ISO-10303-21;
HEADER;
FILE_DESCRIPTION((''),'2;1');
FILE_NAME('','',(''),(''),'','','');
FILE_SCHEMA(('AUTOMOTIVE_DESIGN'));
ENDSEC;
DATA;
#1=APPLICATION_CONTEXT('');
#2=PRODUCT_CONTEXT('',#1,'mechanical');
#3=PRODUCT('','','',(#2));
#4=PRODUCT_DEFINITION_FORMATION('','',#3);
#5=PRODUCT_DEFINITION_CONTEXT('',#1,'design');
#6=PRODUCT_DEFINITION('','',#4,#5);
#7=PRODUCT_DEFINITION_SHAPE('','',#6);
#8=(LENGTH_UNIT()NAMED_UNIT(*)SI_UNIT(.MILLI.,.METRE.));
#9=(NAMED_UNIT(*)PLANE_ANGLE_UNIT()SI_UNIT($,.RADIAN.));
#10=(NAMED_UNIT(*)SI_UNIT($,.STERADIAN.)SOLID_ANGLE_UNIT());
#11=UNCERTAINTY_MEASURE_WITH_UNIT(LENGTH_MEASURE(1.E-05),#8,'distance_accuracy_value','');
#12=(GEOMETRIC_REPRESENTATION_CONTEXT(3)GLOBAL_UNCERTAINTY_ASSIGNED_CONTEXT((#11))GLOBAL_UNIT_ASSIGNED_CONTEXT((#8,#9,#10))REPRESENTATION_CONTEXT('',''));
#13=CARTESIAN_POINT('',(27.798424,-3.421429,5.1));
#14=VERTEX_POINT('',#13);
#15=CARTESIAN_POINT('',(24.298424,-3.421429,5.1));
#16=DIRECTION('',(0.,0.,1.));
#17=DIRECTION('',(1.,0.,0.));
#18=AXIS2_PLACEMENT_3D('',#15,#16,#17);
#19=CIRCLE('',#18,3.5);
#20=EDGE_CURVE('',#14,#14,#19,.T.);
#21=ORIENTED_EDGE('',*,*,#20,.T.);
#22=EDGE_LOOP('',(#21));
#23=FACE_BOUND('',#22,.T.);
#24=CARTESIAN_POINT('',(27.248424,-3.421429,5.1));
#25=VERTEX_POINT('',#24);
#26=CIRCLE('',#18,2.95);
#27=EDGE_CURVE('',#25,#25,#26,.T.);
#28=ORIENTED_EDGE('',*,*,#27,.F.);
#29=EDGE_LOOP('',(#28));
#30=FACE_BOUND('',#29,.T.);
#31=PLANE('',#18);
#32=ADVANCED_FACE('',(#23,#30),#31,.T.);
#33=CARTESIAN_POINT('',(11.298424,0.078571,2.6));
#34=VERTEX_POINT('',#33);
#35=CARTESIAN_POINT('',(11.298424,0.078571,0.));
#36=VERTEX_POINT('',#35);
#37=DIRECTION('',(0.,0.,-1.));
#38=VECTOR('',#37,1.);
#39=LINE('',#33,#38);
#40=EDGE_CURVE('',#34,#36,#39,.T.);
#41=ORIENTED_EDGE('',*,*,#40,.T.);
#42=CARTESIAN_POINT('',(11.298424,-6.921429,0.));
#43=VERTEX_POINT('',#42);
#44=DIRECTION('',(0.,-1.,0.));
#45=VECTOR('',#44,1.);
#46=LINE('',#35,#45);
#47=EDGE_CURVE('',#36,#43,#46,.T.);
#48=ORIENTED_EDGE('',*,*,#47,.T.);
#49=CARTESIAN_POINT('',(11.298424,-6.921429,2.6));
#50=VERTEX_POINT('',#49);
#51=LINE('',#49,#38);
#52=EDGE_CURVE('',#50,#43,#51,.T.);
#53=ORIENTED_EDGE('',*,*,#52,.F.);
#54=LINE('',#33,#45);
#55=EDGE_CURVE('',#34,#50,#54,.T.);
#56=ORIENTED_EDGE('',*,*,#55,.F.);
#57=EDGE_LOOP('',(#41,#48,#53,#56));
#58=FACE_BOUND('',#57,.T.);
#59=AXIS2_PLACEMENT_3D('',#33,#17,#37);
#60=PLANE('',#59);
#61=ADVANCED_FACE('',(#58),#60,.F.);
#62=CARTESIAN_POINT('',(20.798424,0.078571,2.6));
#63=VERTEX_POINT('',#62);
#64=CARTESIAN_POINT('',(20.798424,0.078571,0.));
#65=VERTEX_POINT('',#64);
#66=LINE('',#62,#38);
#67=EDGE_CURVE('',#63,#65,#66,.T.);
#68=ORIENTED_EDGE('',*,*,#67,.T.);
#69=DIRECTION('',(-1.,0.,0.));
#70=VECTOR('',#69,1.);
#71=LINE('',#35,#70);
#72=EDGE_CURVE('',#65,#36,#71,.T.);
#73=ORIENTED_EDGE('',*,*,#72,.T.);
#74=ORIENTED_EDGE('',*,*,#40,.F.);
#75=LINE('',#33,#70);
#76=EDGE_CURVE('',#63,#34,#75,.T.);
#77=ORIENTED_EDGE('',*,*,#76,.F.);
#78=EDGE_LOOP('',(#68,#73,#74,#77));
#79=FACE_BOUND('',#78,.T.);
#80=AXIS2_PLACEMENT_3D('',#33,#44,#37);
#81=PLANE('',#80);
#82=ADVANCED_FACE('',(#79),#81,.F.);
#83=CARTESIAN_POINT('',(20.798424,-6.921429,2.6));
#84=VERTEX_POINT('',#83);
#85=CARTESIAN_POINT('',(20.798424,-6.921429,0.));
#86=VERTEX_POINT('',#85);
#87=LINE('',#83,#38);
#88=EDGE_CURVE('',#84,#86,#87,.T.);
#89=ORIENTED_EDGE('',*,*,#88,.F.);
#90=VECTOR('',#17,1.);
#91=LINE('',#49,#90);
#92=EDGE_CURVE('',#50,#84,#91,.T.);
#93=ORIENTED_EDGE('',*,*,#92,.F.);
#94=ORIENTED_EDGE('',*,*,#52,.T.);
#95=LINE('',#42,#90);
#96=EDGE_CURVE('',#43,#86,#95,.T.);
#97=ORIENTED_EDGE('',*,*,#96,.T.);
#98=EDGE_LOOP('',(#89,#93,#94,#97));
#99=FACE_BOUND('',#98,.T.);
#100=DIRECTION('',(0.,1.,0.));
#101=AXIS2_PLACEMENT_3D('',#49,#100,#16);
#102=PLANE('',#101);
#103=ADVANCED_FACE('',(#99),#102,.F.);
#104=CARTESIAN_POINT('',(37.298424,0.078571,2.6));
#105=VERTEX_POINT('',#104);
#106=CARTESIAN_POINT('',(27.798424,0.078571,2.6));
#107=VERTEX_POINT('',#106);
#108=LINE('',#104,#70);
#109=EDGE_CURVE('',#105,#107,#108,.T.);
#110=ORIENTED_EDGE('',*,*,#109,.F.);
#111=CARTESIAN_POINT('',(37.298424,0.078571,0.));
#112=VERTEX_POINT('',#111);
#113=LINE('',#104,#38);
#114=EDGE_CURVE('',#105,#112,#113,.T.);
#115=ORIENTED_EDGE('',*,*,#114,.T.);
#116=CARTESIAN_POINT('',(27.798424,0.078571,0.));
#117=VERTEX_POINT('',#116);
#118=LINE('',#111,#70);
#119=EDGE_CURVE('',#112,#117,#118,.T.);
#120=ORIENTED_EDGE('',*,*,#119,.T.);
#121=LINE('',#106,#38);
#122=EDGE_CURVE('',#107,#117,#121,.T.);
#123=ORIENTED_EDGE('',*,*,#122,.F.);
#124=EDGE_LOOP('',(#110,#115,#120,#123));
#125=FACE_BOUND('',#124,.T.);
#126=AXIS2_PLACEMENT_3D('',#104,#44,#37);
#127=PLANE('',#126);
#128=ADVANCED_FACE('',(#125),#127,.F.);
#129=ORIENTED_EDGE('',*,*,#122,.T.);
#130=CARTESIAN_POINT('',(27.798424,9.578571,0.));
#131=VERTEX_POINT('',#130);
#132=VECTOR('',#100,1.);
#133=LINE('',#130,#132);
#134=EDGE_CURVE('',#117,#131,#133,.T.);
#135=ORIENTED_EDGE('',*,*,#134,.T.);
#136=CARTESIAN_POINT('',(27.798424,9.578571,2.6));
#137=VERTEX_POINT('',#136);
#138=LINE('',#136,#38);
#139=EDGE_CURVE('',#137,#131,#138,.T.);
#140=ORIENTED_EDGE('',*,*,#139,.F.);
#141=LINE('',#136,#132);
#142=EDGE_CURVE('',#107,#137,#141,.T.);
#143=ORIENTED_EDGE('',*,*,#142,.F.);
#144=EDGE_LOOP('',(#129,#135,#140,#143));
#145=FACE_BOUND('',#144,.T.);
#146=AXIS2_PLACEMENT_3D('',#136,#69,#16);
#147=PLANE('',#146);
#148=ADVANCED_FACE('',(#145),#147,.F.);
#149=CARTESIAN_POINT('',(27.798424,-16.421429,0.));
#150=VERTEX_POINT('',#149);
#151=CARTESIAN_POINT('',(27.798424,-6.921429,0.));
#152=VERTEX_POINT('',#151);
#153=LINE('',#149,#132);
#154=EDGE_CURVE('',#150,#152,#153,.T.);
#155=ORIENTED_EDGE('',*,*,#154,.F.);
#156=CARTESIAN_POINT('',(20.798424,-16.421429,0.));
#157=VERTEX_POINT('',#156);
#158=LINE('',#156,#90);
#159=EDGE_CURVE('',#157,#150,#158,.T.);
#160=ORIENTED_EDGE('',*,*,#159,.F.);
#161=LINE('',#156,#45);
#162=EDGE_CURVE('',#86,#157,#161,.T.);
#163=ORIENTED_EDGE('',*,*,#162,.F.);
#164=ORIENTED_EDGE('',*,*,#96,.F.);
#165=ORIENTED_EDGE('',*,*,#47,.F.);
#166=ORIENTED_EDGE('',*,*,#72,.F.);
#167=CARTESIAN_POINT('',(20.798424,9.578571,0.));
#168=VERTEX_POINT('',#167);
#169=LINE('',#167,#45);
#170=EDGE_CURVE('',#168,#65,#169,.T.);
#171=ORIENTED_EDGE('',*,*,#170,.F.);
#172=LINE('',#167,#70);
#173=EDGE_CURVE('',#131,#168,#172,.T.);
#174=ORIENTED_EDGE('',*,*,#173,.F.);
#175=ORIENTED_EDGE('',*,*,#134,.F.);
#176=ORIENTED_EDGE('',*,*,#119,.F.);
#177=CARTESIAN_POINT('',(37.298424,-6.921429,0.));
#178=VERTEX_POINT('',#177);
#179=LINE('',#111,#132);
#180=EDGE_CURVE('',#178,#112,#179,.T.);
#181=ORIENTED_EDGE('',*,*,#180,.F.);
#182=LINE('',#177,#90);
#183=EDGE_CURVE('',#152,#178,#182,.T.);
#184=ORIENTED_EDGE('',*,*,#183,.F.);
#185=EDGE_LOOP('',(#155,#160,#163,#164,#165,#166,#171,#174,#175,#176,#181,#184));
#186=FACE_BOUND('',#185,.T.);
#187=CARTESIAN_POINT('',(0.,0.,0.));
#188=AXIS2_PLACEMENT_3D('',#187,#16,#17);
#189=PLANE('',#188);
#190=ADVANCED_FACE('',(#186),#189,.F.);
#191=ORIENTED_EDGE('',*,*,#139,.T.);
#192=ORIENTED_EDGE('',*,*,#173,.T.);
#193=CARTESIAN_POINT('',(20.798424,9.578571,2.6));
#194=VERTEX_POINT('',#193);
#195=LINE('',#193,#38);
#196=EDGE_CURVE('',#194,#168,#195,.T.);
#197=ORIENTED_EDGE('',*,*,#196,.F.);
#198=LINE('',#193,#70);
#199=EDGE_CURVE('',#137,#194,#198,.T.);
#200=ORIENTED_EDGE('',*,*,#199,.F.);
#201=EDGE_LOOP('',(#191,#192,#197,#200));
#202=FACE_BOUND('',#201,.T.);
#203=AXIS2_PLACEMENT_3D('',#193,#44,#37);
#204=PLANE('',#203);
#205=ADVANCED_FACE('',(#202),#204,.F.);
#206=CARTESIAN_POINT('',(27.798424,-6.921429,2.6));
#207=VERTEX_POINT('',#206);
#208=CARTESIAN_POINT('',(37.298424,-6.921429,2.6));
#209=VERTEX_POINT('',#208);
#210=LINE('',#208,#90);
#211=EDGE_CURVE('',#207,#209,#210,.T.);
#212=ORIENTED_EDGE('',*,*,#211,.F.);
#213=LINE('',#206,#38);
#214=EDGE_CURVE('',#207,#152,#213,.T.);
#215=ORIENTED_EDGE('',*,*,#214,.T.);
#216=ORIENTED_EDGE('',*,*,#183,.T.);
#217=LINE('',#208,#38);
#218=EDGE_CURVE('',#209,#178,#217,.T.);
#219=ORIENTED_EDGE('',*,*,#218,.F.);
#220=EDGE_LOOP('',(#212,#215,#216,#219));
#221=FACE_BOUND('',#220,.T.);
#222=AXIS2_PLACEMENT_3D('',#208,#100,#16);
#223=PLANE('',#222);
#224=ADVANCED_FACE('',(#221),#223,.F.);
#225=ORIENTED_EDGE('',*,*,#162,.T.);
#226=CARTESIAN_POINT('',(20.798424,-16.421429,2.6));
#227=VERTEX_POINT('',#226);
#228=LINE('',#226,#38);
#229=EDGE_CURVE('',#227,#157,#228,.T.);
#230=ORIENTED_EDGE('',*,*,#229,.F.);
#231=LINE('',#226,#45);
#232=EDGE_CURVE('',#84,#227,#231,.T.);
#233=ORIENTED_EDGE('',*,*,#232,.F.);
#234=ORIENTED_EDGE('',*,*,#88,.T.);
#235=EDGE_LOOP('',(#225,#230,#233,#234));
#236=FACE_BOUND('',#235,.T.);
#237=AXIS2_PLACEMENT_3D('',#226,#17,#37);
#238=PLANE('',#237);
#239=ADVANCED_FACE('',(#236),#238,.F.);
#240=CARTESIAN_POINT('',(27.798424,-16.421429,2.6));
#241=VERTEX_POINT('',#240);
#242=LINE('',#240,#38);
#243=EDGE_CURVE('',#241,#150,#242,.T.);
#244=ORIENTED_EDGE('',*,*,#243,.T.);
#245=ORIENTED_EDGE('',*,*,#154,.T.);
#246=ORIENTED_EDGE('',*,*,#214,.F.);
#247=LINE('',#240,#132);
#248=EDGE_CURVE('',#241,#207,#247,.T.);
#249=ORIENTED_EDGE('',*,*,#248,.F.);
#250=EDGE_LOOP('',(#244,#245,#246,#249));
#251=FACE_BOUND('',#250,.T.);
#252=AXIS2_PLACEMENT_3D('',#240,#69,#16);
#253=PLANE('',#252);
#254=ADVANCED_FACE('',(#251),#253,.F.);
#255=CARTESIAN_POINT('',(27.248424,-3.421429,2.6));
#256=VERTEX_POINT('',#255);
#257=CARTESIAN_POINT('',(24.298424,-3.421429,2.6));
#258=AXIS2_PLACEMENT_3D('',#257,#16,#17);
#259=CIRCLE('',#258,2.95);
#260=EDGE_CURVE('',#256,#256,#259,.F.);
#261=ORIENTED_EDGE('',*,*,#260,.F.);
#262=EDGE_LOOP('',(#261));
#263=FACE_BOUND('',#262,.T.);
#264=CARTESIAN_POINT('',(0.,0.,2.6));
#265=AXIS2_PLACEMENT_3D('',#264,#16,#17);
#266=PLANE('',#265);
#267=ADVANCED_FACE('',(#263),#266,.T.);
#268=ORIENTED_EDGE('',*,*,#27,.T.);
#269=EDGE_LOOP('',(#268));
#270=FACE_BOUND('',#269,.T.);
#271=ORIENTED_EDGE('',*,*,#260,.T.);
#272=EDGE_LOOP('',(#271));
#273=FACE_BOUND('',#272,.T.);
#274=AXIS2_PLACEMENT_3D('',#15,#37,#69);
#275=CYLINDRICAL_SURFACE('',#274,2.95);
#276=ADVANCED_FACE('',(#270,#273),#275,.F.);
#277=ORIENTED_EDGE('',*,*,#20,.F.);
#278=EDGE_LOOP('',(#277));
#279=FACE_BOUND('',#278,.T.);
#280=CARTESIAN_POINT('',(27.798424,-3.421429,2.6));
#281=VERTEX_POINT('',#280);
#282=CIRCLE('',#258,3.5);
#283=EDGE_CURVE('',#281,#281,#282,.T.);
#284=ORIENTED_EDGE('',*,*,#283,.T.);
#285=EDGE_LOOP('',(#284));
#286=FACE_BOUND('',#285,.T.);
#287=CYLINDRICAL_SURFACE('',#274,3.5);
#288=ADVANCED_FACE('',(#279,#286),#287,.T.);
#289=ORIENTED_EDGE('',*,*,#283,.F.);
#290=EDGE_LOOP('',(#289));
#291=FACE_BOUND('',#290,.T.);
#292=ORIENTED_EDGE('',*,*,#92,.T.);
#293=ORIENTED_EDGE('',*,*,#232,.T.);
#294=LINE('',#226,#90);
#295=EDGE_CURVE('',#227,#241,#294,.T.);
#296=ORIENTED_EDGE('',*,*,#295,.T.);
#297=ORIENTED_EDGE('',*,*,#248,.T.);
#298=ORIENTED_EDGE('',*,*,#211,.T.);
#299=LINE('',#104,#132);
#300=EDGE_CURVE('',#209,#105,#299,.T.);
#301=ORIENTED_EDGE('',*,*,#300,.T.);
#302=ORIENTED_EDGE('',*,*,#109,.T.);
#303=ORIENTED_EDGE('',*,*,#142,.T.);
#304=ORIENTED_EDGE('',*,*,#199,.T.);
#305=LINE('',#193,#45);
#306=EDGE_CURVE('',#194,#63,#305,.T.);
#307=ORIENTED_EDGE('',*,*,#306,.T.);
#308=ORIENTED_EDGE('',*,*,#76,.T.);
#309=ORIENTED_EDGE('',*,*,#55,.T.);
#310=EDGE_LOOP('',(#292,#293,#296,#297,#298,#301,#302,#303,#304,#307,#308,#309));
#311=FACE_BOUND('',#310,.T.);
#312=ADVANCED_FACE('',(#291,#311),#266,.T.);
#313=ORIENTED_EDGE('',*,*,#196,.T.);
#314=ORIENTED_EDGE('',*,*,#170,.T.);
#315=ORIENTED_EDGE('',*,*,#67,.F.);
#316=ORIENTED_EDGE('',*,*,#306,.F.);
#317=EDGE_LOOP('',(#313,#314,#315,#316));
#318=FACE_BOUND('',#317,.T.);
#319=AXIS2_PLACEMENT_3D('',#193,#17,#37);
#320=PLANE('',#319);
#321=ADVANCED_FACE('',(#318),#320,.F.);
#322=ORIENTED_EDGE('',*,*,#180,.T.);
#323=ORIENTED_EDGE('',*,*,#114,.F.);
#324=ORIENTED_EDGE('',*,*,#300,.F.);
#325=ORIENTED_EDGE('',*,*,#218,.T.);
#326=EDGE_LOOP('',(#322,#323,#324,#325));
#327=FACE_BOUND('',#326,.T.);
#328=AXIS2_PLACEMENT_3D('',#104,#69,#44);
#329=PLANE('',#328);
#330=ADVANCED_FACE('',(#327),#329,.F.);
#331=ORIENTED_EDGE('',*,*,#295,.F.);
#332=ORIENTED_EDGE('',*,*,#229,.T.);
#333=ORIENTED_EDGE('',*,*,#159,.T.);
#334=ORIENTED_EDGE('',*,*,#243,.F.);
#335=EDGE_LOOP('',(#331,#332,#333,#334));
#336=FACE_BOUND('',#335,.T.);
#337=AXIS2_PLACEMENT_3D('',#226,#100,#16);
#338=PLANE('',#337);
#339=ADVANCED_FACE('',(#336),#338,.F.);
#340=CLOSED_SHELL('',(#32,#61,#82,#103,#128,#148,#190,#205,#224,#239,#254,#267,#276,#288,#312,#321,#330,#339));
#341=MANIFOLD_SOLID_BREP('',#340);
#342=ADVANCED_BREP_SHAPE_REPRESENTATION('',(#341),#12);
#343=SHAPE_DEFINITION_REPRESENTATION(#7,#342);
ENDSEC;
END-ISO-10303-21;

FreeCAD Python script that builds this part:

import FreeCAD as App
import Part
import Sketcher

doc = App.newDocument("Part")
body = doc.addObject("PartDesign::Body", "Body")

sketch1 = body.newObject("Sketcher::SketchObject", "Sketch")
sketch1.AttachmentSupport = (doc.getObject("XY_Plane"), [""])
sketch1.MapMode = "FlatFace"
sketch1.addGeometry([
    Part.LineSegment(App.Vector(20.798424, 0.078571, 0), App.Vector(11.298424, 0.078571, 0)),
    Part.LineSegment(App.Vector(11.298424, 0.078571, 0), App.Vector(11.298424, -6.921429, 0)),
    Part.LineSegment(App.Vector(11.298424, -6.921429, 0), App.Vector(20.798424, -6.921429, 0)),
    Part.LineSegment(App.Vector(20.798424, -6.921429, 0), App.Vector(20.798424, -16.421429, 0)),
    Part.LineSegment(App.Vector(20.798424, -16.421429, 0), App.Vector(27.798424, -16.421429, 0)),
    Part.LineSegment(App.Vector(27.798424, -16.421429, 0), App.Vector(27.798424, -6.921429, 0)),
    Part.LineSegment(App.Vector(27.798424, -6.921429, 0), App.Vector(37.298424, -6.921429, 0)),
    Part.LineSegment(App.Vector(37.298424, -6.921429, 0), App.Vector(37.298424, 0.078571, 0)),
    Part.LineSegment(App.Vector(37.298424, 0.078571, 0), App.Vector(27.798424, 0.078571, 0)),
    Part.LineSegment(App.Vector(27.798424, 0.078571, 0), App.Vector(27.798424, 9.578571, 0)),
    Part.LineSegment(App.Vector(27.798424, 9.578571, 0), App.Vector(20.798424, 9.578571, 0)),
    Part.LineSegment(App.Vector(20.798424, 9.578571, 0), App.Vector(20.798424, 0.078571, 0)),
], False)
sketch1.addConstraint([
    Sketcher.Constraint("Coincident", 0, 2, 1, 1),
    Sketcher.Constraint("Coincident", 1, 2, 2, 1),
    Sketcher.Constraint("Coincident", 2, 2, 3, 1),
    Sketcher.Constraint("Coincident", 3, 2, 4, 1),
    Sketcher.Constraint("Coincident", 4, 2, 5, 1),
    Sketcher.Constraint("Coincident", 5, 2, 6, 1),
    Sketcher.Constraint("Coincident", 6, 2, 7, 1),
    Sketcher.Constraint("Coincident", 7, 2, 8, 1),
    Sketcher.Constraint("Coincident", 8, 2, 9, 1),
    Sketcher.Constraint("Coincident", 9, 2, 10, 1),
    Sketcher.Constraint("Coincident", 10, 2, 11, 1),
    Sketcher.Constraint("Coincident", 11, 2, 0, 1),
    Sketcher.Constraint("Horizontal", 0),
    Sketcher.Constraint("Vertical", 1),
    Sketcher.Constraint("Horizontal", 2),
    Sketcher.Constraint("Vertical", 3),
    Sketcher.Constraint("Horizontal", 4),
    Sketcher.Constraint("Vertical", 5),
    Sketcher.Constraint("Horizontal", 6),
    Sketcher.Constraint("Vertical", 7),
    Sketcher.Constraint("Horizontal", 8),
    Sketcher.Constraint("Vertical", 9),
    Sketcher.Constraint("Horizontal", 10),
    Sketcher.Constraint("Vertical", 11),
    Sketcher.Constraint("Horizontal", 2, 2, 5, 2),
    Sketcher.Constraint("Horizontal", 0, 2, 7, 2),
    Sketcher.Constraint("Vertical", 5, 2, 8, 2),
    Sketcher.Constraint("Vertical", 3, 2, 10, 2),
    Sketcher.Constraint("Equal", 2, 6),
    Sketcher.Constraint("Equal", 10, 1),
    Sketcher.Constraint("Equal", 8, 3),
    Sketcher.Constraint("Equal", 5, 9),
    Sketcher.Constraint("DistanceX", 4, 1, 4, 2, 7.0),
    Sketcher.Constraint("DistanceX", 0, 2, 0, 1, 9.5),
    Sketcher.Constraint("DistanceY", -1, 1, 0, 2, 0.078571),
    Sketcher.Constraint("DistanceX", -1, 1, 0, 2, 11.298424),
])
pad1 = body.newObject("PartDesign::Pad", "Pad")
pad1.Profile = sketch1
pad1.Length = 2.6

sketch2 = body.newObject("Sketcher::SketchObject", "Sketch001")
sketch2.AttachmentSupport = (doc.getObject("XY_Plane"), [""])
sketch2.MapMode = "FlatFace"
sketch2.AttachmentOffset = App.Placement(App.Vector(0, 0, 2.6), App.Rotation())
sketch2.addGeometry([
    Part.Circle(App.Vector(24.298424, -3.421429, 0), App.Vector(0, 0, 1), 3.5),
    Part.Circle(App.Vector(24.298424, -3.421429, 0), App.Vector(0, 0, 1), 2.95),
], False)
sketch2.addConstraint([
    Sketcher.Constraint("Coincident", 1, 3, 0, 3),
    Sketcher.Constraint("Diameter", 0, 7.0),
    Sketcher.Constraint("Diameter", 1, 5.9),
    Sketcher.Constraint("DistanceY", 0, 3, -1, 1, 3.421429),
    Sketcher.Constraint("DistanceX", -1, 1, 0, 3, 24.298424),
])
pad2 = body.newObject("PartDesign::Pad", "Pad001")
pad2.Profile = sketch2
pad2.Length = 2.5

doc.recompute()
